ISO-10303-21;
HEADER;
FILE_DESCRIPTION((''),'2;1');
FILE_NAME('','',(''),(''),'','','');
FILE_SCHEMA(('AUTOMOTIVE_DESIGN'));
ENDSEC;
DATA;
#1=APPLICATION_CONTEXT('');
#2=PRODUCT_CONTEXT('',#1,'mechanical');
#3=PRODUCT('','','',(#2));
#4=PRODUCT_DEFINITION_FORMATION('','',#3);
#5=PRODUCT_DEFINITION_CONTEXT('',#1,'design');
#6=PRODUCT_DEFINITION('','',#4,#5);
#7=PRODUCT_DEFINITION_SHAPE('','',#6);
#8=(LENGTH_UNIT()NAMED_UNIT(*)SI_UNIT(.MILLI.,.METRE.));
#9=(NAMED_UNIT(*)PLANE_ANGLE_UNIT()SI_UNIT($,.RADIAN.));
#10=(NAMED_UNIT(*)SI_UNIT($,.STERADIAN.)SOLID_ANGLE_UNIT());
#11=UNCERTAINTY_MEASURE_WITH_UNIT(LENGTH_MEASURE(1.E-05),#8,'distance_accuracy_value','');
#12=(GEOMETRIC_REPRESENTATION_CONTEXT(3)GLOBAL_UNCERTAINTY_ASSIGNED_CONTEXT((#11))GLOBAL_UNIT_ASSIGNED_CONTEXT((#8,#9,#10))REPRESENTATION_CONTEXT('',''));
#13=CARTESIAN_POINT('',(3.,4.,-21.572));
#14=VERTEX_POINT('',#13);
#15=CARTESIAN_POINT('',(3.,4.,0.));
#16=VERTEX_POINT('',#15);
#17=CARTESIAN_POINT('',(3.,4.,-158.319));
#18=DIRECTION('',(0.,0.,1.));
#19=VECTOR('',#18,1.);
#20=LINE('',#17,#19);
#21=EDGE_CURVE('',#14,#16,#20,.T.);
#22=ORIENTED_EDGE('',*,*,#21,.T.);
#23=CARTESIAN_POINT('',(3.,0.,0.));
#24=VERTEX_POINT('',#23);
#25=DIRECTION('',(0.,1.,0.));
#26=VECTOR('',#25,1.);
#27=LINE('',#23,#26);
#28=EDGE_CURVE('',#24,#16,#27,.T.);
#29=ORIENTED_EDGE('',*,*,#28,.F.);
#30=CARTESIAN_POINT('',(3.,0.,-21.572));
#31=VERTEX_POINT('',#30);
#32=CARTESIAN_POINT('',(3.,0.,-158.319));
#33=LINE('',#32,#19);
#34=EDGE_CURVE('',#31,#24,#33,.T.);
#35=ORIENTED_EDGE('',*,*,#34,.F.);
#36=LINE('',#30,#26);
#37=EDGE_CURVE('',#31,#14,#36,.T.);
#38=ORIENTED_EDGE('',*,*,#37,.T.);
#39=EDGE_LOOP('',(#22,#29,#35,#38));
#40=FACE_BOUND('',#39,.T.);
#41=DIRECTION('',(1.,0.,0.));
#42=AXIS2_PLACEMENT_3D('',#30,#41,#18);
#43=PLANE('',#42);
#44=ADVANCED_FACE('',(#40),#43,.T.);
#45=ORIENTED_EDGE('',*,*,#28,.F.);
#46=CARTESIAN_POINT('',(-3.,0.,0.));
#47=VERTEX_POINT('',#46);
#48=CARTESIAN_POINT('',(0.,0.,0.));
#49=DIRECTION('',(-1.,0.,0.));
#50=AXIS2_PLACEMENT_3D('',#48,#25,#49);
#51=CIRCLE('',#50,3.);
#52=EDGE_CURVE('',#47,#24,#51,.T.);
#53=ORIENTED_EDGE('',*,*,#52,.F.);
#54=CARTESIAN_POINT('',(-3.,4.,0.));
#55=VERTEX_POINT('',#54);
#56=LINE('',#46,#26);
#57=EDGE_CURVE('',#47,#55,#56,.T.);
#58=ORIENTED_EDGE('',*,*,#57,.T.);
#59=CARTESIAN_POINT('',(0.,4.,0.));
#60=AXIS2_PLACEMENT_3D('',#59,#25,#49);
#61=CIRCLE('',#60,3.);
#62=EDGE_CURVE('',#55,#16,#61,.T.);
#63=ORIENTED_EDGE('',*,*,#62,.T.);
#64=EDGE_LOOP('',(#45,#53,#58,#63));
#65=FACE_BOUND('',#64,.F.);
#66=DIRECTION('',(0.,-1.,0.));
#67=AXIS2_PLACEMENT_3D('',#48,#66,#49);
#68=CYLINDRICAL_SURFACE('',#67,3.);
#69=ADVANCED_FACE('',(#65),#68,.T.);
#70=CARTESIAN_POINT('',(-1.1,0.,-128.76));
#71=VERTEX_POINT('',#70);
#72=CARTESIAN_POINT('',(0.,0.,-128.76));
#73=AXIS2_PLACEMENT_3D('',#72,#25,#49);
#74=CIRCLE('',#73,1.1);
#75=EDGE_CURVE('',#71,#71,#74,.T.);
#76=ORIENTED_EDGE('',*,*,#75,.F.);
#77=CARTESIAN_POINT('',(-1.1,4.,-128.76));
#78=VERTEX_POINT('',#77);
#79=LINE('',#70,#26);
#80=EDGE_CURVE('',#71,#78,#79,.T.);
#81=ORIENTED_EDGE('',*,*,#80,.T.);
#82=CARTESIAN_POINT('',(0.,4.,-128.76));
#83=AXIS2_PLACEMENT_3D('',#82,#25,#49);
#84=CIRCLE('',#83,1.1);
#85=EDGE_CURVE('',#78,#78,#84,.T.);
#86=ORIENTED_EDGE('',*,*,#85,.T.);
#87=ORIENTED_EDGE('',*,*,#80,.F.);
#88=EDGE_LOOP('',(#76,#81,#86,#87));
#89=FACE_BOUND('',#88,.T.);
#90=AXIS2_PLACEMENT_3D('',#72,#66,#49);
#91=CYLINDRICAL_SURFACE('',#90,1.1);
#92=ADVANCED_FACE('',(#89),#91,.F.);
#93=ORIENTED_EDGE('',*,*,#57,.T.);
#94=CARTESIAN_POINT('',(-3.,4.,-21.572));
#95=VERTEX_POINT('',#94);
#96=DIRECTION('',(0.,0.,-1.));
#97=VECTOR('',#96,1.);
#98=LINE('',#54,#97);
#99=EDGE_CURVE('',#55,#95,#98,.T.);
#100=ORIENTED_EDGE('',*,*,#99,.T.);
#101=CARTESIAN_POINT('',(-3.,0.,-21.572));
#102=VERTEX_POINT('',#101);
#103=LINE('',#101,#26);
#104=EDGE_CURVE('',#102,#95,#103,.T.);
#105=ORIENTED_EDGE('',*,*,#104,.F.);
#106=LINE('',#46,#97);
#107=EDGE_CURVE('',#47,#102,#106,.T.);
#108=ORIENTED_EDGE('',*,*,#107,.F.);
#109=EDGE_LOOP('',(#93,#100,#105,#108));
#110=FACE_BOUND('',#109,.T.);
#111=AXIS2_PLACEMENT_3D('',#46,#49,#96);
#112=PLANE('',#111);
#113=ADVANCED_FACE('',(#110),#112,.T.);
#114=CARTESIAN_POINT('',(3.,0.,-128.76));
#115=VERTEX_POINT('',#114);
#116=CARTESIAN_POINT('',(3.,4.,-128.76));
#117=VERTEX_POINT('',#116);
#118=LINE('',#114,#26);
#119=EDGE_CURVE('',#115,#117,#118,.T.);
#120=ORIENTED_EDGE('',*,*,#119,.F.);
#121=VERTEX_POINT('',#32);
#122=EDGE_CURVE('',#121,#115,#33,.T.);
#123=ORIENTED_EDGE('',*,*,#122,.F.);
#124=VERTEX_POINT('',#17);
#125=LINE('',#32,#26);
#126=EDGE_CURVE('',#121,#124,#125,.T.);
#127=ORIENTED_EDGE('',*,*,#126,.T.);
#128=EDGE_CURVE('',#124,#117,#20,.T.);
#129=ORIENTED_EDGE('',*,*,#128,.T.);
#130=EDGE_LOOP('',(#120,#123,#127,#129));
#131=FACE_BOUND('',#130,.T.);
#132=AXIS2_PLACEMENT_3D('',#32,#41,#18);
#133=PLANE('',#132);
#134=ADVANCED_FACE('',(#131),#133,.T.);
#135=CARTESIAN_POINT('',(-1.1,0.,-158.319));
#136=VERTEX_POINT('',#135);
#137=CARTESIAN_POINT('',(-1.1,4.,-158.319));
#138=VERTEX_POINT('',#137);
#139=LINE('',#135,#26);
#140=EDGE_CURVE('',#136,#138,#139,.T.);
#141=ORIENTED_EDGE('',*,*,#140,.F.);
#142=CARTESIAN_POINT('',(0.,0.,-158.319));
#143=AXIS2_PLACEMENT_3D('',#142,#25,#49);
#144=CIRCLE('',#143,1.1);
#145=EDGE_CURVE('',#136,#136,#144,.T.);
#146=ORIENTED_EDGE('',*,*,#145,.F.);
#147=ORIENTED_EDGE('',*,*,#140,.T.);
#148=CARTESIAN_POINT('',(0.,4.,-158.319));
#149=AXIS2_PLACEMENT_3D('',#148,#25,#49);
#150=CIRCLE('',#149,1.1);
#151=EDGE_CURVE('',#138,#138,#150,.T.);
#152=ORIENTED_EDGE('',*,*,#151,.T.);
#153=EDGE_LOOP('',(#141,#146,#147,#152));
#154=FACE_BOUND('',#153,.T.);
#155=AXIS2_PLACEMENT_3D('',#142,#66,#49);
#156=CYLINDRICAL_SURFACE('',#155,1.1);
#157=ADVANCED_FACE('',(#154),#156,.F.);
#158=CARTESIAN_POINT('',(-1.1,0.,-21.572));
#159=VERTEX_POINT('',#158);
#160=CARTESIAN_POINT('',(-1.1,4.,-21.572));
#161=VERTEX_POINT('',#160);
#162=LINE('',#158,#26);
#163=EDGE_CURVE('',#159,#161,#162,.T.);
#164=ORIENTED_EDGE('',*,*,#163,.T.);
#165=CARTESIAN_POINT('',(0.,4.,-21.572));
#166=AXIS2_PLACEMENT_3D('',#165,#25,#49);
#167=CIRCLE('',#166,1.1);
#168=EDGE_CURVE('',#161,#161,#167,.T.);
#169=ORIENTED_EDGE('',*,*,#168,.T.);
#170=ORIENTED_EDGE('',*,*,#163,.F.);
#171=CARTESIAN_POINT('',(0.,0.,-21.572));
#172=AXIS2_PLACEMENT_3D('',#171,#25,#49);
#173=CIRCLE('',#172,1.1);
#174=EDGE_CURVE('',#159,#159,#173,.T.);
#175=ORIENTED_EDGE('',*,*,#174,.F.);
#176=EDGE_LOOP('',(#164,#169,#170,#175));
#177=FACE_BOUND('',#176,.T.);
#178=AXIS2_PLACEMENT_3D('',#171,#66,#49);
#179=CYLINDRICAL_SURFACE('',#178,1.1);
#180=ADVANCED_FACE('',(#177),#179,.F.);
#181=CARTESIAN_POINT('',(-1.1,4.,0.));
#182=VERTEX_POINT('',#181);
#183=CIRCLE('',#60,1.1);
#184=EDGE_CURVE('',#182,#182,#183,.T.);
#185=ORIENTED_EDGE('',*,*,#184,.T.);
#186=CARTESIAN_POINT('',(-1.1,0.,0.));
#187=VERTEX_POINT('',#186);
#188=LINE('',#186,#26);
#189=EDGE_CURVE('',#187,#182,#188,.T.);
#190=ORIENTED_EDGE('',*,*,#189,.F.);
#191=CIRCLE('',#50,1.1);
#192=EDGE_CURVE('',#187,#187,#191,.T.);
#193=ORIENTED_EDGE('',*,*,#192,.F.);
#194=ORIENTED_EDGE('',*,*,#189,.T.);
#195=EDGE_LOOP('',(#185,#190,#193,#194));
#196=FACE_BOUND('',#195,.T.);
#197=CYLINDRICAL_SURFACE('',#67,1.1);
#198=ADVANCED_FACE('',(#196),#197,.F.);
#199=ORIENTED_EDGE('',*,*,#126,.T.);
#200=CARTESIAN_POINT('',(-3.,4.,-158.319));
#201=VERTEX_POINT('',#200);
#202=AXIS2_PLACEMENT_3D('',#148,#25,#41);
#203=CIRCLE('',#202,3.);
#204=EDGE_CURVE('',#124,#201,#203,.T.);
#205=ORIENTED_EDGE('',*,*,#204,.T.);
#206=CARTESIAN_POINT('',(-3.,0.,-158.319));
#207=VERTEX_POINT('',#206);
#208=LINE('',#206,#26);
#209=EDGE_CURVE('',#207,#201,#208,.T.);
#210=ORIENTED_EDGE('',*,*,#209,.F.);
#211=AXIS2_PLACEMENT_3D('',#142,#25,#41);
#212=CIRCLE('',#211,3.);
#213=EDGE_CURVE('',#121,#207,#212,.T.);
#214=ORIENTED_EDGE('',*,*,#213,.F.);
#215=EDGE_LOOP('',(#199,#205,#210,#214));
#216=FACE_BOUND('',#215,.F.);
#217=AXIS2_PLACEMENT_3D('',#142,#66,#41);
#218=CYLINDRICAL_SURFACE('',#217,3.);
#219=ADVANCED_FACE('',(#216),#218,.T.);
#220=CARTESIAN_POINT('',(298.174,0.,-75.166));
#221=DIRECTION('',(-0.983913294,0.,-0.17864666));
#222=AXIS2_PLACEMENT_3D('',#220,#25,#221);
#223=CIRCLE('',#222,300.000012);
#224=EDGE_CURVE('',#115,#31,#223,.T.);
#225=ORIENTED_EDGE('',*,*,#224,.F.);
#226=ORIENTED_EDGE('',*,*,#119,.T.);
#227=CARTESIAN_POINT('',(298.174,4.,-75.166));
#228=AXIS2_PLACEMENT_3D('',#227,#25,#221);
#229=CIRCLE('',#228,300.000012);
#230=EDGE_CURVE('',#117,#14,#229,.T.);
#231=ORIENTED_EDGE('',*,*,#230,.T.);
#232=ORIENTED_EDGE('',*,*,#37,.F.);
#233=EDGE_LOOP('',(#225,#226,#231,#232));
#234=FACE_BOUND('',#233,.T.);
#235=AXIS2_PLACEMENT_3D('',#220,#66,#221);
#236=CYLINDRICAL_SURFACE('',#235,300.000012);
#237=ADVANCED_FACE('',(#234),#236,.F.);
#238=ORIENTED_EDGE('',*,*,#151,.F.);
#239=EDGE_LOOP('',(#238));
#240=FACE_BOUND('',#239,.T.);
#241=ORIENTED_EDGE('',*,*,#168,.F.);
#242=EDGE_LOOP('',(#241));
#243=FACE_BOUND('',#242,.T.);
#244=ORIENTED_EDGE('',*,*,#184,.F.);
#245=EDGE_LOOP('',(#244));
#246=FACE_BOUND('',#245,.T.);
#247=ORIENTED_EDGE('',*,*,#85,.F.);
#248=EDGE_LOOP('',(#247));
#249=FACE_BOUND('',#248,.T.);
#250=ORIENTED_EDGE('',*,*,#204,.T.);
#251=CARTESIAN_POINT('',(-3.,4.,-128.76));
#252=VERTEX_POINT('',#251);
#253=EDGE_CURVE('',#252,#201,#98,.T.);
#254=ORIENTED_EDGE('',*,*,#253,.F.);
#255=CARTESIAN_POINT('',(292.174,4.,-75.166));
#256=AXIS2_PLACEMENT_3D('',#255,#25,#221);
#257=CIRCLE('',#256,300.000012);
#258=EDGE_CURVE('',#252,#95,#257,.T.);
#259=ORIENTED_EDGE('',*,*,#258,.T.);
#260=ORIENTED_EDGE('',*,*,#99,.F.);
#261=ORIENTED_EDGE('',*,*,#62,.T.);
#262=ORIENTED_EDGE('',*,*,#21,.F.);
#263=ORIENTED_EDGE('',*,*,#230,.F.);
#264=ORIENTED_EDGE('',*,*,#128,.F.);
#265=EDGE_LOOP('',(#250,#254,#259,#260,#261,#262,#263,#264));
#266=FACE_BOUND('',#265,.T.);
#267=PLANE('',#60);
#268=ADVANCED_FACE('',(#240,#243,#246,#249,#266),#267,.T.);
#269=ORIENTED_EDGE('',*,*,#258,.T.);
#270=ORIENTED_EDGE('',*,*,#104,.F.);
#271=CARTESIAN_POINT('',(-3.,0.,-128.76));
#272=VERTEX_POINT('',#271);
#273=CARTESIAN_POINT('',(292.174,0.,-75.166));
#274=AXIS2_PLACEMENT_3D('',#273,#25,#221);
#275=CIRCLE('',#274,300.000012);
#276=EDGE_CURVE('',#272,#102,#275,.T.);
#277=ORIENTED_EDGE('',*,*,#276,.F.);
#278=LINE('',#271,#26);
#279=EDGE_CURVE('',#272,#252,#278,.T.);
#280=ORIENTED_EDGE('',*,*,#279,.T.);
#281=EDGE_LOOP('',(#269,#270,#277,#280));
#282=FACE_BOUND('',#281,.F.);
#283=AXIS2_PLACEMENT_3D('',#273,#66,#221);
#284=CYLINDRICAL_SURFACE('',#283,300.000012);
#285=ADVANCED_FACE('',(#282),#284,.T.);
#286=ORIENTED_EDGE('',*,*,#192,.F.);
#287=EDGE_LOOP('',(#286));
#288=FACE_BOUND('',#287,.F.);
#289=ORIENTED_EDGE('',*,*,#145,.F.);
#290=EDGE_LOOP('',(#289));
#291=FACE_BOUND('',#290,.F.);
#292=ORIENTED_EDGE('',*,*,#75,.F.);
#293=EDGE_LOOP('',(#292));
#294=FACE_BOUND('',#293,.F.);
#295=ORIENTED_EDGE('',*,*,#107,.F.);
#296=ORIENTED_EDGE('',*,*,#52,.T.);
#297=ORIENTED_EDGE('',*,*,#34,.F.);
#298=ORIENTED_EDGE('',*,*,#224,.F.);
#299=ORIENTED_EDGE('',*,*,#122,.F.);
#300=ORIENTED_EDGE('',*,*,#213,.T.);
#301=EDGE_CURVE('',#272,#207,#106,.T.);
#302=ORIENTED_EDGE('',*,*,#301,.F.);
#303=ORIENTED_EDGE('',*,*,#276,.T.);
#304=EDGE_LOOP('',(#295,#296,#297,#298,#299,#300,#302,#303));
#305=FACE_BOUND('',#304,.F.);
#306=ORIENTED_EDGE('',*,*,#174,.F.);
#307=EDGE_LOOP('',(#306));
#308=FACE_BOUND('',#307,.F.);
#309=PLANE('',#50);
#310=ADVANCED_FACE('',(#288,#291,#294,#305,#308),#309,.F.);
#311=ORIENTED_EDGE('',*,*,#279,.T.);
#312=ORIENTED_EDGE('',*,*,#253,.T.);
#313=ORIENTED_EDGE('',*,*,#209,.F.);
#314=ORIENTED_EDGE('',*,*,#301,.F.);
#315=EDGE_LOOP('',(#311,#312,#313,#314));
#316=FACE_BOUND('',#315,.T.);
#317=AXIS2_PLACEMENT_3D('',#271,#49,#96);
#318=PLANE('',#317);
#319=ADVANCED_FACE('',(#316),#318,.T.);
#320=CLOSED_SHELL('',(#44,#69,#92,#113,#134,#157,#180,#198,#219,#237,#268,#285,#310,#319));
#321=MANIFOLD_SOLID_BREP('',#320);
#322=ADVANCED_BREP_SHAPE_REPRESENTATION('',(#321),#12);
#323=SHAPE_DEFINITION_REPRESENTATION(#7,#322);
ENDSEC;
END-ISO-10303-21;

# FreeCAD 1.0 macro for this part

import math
import FreeCAD as App
import Part
import Sketcher

V = App.Vector
Q = App.Units.Quantity

doc = App.newDocument("Part")
params = doc.addObject("Spreadsheet::Sheet", "Params")
for row, (alias, value) in enumerate([
    ("sketch1_radius", "3 mm"),
    ("sketch1_radius2", "300 mm"),
    ("sketch1_diameter", "2.2 mm"),
    ("pad1_length", "4 mm"),
], start=1):
    params.set(f"A{row}", alias)
    params.set(f"B{row}", "=" + value)
    params.setAlias(f"B{row}", alias)

body = doc.addObject("PartDesign::Body", "Body")

# Sketch on XZ plane
sketch1 = body.newObject("Sketcher::SketchObject", "Sketch")
sketch1.AttachmentSupport = (doc.getObject("XZ_Plane"), [""])
sketch1.MapMode = "FlatFace"
sketch1.addGeometry([
    Part.LineSegment(V(-3, -21.572, 0), V(-3, 0, 0)),  # 0
    Part.ArcOfCircle(Part.Circle(V(0, 0, 0), V(0, 0, 1), 3), math.radians(0), math.radians(180)),  # 1
    Part.LineSegment(V(3, 0, 0), V(3, -21.572, 0)),  # 2
    Part.ArcOfCircle(Part.Circle(V(298.174, -75.166, 0), V(0, 0, 1), 300.000012), math.radians(169.709059), math.radians(190.290941)),  # 3
    Part.LineSegment(V(3, -128.76, 0), V(3, -158.319, 0)),  # 4
    Part.ArcOfCircle(Part.Circle(V(0, -158.319, 0), V(0, 0, 1), 3), math.radians(180), math.radians(360)),  # 5
    Part.LineSegment(V(-3, -158.319, 0), V(-3, -128.76, 0)),  # 6
    Part.ArcOfCircle(Part.Circle(V(292.174, -75.166, 0), V(0, 0, 1), 300.000012), math.radians(169.709059), math.radians(190.290941)),  # 7
    Part.Circle(V(0, -158.319, 0), V(0, 0, 1), 1.1),  # 8
    Part.Circle(V(0, -128.76, 0), V(0, 0, 1), 1.1),  # 9
    Part.Circle(V(0, -21.572, 0), V(0, 0, 1), 1.1),  # 10
    Part.Circle(V(0, 0, 0), V(0, 0, 1), 1.1),  # 11
], False)
sketch1.addConstraint([
    Sketcher.Constraint("Tangent", 0, 2, 1, 2),
    Sketcher.Constraint("Tangent", 1, 1, 2, 1),
    Sketcher.Constraint("Coincident", 2, 2, 3, 1),
    Sketcher.Constraint("Coincident", 3, 2, 4, 1),
    Sketcher.Constraint("Tangent", 4, 2, 5, 2),
    Sketcher.Constraint("Tangent", 5, 1, 6, 1),
    Sketcher.Constraint("Coincident", 6, 2, 7, 2),
    Sketcher.Constraint("Coincident", 7, 1, 0, 1),
    Sketcher.Constraint("Vertical", 0),
    Sketcher.Constraint("Vertical", 2),
    Sketcher.Constraint("Vertical", 4),
    Sketcher.Constraint("Vertical", 6),
    Sketcher.Constraint("Coincident", 1, 3, -1, 1),
    Sketcher.Constraint("Coincident", 11, 3, -1, 1),
    Sketcher.Constraint("Coincident", 8, 3, 5, 3),
    Sketcher.Constraint("Equal", 1, 5),
    Sketcher.Constraint("Equal", 3, 7),
    Sketcher.Constraint("Equal", 8, 9),
    Sketcher.Constraint("Equal", 9, 10),
    Sketcher.Constraint("Equal", 10, 11),
    Sketcher.Constraint("Symmetric", 3, 2, 6, 2, -2),
    Sketcher.Constraint("PointOnObject", 9, 3, -2),
    Sketcher.Constraint("PointOnObject", 10, 3, -2),
    Sketcher.Constraint("Horizontal", 3, 3, 7, 3),
    Sketcher.Constraint("Horizontal", 10, 3, 2, 2),
    Sketcher.Constraint("Horizontal", 9, 3, 3, 2),
    Sketcher.Constraint("Radius", 1, Q("3 mm")),
    Sketcher.Constraint("Radius", 3, Q("300 mm")),
    Sketcher.Constraint("Diameter", 8, Q("2.2 mm")),
    Sketcher.Constraint("DistanceY", 0, 1, 0, 2, Q("21.572 mm")),
    Sketcher.Constraint("DistanceY", 9, 3, -1, 1, Q("128.76 mm")),
    Sketcher.Constraint("DistanceY", 5, 3, -1, 1, Q("158.319 mm")),
])
sketch1.setExpression("Constraints[26]", "Params.sketch1_radius")
sketch1.setExpression("Constraints[27]", "Params.sketch1_radius2")
sketch1.setExpression("Constraints[28]", "Params.sketch1_diameter")
pad1 = body.newObject("PartDesign::Pad", "Pad")
pad1.Profile = sketch1
pad1.setExpression("Length", "Params.pad1_length")
pad1.Reversed = True

doc.recompute()
